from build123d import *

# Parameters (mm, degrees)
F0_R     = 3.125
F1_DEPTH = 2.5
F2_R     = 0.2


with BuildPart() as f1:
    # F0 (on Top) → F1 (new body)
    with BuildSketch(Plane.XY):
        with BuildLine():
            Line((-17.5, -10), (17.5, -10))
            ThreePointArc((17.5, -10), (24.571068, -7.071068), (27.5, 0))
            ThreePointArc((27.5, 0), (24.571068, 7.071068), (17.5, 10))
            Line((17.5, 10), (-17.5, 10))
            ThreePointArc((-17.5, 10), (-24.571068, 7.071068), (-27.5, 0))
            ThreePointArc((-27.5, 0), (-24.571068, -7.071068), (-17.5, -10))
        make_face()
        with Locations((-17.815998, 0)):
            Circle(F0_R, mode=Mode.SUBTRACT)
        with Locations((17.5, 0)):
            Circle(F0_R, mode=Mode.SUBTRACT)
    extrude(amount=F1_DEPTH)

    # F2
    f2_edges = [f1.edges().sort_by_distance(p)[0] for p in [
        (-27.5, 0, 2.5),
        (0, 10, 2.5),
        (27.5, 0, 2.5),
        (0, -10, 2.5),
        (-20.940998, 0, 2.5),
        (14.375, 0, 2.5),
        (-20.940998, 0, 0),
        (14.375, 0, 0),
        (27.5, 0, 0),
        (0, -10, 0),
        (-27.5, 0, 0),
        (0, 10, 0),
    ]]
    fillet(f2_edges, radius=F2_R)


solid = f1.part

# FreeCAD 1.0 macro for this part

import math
import FreeCAD as App
import Part
import Sketcher

V = App.Vector


def edges_at(feature, points):
    """Names of the edges that pass closest to the given points."""
    edges = feature.Shape.Edges
    near = lambda p: min(range(len(edges)), key=lambda i: edges[i].distToShape(Part.Vertex(*p))[0])
    return sorted({f"Edge{near(p) + 1}" for p in points})

doc = App.newDocument("Part")
body = doc.addObject("PartDesign::Body", "Body")

sketch1 = body.newObject("Sketcher::SketchObject", "Sketch")
sketch1.AttachmentSupport = (doc.getObject("XY_Plane"), [""])
sketch1.MapMode = "FlatFace"
sketch1.addGeometry(Part.LineSegment(V(-17.5, -10, 0), V(17.5, -10, 0)), False)
sketch1.addGeometry(Part.ArcOfCircle(Part.Circle(V(17.500001, -0.000001, 0), V(0, 0, 1), 9.999999), math.radians(-90.000004), math.radians(0.000004)), False)
sketch1.addGeometry(Part.ArcOfCircle(Part.Circle(V(17.500001, 0.000001, 0), V(0, 0, 1), 9.999999), math.radians(-0.000004), math.radians(90.000004)), False)
sketch1.addGeometry(Part.LineSegment(V(17.5, 10, 0), V(-17.5, 10, 0)), False)
sketch1.addGeometry(Part.ArcOfCircle(Part.Circle(V(-17.500001, 0.000001, 0), V(0, 0, 1), 9.999999), math.radians(89.999996), math.radians(180.000004)), False)
sketch1.addGeometry(Part.ArcOfCircle(Part.Circle(V(-17.500001, -0.000001, 0), V(0, 0, 1), 9.999999), math.radians(179.999996), math.radians(270.000004)), False)
sketch1.addGeometry(Part.Circle(V(-17.815998, 0, 0), V(0, 0, 1), 3.125), False)
sketch1.addGeometry(Part.Circle(V(17.5, 0, 0), V(0, 0, 1), 3.125), False)
sketch1.addConstraint(Sketcher.Constraint("Tangent", 0, 2, 1, 1))
sketch1.addConstraint(Sketcher.Constraint("Tangent", 1, 2, 2, 1))
sketch1.addConstraint(Sketcher.Constraint("Tangent", 2, 2, 3, 1))
sketch1.addConstraint(Sketcher.Constraint("Tangent", 3, 2, 4, 1))
sketch1.addConstraint(Sketcher.Constraint("Tangent", 4, 2, 5, 1))
sketch1.addConstraint(Sketcher.Constraint("Tangent", 5, 2, 0, 1))
sketch1.addConstraint(Sketcher.Constraint("Horizontal", 0))
sketch1.addConstraint(Sketcher.Constraint("Horizontal", 3))
sketch1.addConstraint(Sketcher.Constraint("Coincident", 7, 3, 1, 3))
sketch1.addConstraint(Sketcher.Constraint("Equal", 1, 2))
sketch1.addConstraint(Sketcher.Constraint("Equal", 2, 4))
sketch1.addConstraint(Sketcher.Constraint("Equal", 6, 7))
sketch1.addConstraint(Sketcher.Constraint("Symmetric", 1, 3, 4, 3, -1, 1))
sketch1.addConstraint(Sketcher.Constraint("PointOnObject", 6, 3, -1))
sketch1.addConstraint(Sketcher.Constraint("PointOnObject", 1, 2, -1))
sketch1.addConstraint(Sketcher.Constraint("PointOnObject", 4, 2, -1))
sketch1.addConstraint(Sketcher.Constraint("Radius", 1, 9.999999))
sketch1.addConstraint(Sketcher.Constraint("Diameter", 6, 6.25))
sketch1.addConstraint(Sketcher.Constraint("DistanceX", 0, 1, 0, 2, 35.0))
sketch1.addConstraint(Sketcher.Constraint("DistanceX", 6, 3, -1, 1, 17.815998))
pad1 = body.newObject("PartDesign::Pad", "Pad")
pad1.Profile = sketch1
pad1.Length = 2.5
doc.recompute()

fillet = body.newObject("PartDesign::Fillet", "Fillet")
fillet.Base = (pad1, edges_at(pad1, [
    (-27.5, 0, 1.25),
    (0, 10, 2.5),
    (27.5, 0, 1.25),
    (0, -10, 2.5),
    (-20.941, 0, 2.5),
    (14.375, 0, 2.5),
    (-20.941, 0, 0),
    (14.375, 0, 0),
    (27.5, 0, 1.25),
    (0, -10, 0),
    (-27.5, 0, 1.25),
    (0, 10, 0),
]))
fillet.Radius = 0.2

doc.recompute()
